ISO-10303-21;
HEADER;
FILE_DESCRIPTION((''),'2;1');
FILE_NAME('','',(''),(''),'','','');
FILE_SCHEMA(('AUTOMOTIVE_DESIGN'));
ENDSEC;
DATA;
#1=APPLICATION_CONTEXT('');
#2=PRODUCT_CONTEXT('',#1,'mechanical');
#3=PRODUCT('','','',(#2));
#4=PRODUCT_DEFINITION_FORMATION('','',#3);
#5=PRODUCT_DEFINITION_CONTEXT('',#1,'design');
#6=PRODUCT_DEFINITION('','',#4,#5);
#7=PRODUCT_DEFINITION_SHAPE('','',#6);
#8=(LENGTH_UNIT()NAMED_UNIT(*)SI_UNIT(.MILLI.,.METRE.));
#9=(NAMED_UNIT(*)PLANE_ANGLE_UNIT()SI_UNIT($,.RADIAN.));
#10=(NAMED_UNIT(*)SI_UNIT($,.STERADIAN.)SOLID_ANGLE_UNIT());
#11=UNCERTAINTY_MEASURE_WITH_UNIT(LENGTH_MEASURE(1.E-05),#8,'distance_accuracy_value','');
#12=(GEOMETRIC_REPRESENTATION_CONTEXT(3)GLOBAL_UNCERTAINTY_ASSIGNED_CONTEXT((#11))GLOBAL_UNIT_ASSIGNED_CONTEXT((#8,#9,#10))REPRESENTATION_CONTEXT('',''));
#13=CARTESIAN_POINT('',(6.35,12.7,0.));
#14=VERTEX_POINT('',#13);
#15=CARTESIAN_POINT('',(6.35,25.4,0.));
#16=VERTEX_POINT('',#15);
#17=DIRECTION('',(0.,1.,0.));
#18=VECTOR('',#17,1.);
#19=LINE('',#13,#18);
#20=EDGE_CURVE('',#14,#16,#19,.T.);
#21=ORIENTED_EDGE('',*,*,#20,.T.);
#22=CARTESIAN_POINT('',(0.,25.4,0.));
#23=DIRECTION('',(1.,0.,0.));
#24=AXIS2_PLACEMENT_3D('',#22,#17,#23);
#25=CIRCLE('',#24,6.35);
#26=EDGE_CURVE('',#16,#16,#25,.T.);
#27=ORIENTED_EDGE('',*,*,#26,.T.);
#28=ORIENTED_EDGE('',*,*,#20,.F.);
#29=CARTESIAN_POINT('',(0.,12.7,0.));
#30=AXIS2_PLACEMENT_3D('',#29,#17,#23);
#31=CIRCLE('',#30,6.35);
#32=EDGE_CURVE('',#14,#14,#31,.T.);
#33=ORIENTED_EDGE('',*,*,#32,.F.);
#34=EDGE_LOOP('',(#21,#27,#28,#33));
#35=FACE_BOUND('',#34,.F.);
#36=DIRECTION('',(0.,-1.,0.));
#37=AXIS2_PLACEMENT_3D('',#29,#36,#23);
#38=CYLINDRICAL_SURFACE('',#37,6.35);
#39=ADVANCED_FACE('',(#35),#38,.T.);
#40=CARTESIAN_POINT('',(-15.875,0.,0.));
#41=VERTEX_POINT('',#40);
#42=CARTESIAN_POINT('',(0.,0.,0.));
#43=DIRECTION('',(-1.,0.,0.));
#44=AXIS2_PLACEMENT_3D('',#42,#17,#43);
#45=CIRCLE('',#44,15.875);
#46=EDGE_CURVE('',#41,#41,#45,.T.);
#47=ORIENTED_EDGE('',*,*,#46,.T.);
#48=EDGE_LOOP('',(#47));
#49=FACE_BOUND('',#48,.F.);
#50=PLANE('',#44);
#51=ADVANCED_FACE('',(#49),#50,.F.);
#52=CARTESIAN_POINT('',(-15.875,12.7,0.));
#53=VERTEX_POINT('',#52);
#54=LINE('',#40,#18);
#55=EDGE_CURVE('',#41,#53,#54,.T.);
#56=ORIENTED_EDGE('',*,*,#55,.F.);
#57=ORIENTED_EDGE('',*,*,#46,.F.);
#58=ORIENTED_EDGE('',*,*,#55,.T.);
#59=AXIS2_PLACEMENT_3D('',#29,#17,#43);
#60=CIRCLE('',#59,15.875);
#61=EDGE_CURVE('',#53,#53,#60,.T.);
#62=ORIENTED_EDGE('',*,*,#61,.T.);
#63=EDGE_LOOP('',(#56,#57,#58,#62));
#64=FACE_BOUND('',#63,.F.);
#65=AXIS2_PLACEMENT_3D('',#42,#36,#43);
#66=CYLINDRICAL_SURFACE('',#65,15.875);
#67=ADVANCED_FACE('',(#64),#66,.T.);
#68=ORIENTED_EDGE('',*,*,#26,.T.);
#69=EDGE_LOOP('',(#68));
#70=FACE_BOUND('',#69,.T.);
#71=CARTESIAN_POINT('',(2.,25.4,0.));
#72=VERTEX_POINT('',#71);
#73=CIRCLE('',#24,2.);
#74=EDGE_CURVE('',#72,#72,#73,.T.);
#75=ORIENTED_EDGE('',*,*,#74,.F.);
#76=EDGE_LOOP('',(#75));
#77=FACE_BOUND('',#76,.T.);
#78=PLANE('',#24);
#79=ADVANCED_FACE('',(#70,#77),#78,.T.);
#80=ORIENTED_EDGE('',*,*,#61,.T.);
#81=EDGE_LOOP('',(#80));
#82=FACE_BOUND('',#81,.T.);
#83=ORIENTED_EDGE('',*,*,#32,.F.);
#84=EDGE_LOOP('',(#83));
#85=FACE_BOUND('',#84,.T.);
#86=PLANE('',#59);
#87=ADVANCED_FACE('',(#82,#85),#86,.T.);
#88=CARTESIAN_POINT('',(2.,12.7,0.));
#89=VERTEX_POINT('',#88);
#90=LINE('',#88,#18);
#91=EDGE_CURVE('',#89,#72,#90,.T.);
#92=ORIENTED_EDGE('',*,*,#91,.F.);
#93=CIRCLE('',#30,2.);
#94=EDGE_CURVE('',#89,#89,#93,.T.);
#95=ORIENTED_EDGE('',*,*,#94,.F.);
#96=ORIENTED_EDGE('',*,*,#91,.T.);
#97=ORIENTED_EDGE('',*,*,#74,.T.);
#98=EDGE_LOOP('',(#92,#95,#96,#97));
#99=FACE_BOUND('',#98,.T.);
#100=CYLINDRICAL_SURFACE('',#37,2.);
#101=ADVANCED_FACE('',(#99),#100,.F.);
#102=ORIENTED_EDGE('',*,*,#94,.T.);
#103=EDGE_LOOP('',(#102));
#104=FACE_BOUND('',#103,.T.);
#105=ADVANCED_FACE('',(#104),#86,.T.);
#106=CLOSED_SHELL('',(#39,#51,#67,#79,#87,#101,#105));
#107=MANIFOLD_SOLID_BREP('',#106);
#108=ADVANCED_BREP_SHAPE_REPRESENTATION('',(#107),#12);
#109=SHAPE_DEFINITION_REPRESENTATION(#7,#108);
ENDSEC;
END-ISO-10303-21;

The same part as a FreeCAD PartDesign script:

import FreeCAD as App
import Part
import Sketcher
from FreeCAD import Vector
Q = App.Units.Quantity

doc = App.newDocument("Part")
params = doc.addObject("Spreadsheet::Sheet", "Params")
for row, (alias, value) in enumerate([
    ("sketch1_diameter", "1.25 in"),
    ("pad1_length", "0.5 in"),
    ("sketch2_diameter", "0.5 in"),
    ("pad2_length", "0.5 in"),
], start=1):
    params.set(f"A{row}", alias)
    params.set(f"B{row}", "=" + value)
    params.setAlias(f"B{row}", alias)

body = doc.addObject("PartDesign::Body", "Body")

sketch1 = body.newObject("Sketcher::SketchObject", "Sketch")
sketch1.AttachmentSupport = (doc.getObject("XZ_Plane"), [""])
sketch1.MapMode = "FlatFace"
sketch1.addGeometry(Part.Circle(Vector(0, 0, 0), Vector(0, 0, 1), 15.875), False)
sketch1.addConstraint(Sketcher.Constraint("Coincident", 0, 3, -1, 1))
sketch1.addConstraint(Sketcher.Constraint("Diameter", 0, Q("1.25 in")))
sketch1.setExpression("Constraints[1]", "Params.sketch1_diameter")
pad1 = body.newObject("PartDesign::Pad", "Pad")
pad1.Profile = sketch1
pad1.setExpression("Length", "Params.pad1_length")
pad1.Reversed = True

sketch2 = body.newObject("Sketcher::SketchObject", "Sketch001")
sketch2.AttachmentSupport = (doc.getObject("XZ_Plane"), [""])
sketch2.MapMode = "FlatFace"
sketch2.AttachmentOffset = App.Placement(Vector(0, 0, -0.5 * 25.4), App.Rotation())
sketch2.addGeometry(Part.Circle(Vector(0, 0, 0), Vector(0, 0, 1), 6.35), False)
sketch2.addGeometry(Part.Circle(Vector(0, 0, 0), Vector(0, 0, 1), 2), False)
sketch2.addConstraint(Sketcher.Constraint("Coincident", 0, 3, -1, 1))
sketch2.addConstraint(Sketcher.Constraint("Coincident", 1, 3, -1, 1))
sketch2.addConstraint(Sketcher.Constraint("Diameter", 0, Q("0.5 in")))
sketch2.addConstraint(Sketcher.Constraint("Diameter", 1, Q("4 mm")))
sketch2.setExpression("Constraints[2]", "Params.sketch2_diameter")
pad2 = body.newObject("PartDesign::Pad", "Pad001")
pad2.Profile = sketch2
pad2.setExpression("Length", "Params.pad2_length")
pad2.Reversed = True

doc.recompute()
